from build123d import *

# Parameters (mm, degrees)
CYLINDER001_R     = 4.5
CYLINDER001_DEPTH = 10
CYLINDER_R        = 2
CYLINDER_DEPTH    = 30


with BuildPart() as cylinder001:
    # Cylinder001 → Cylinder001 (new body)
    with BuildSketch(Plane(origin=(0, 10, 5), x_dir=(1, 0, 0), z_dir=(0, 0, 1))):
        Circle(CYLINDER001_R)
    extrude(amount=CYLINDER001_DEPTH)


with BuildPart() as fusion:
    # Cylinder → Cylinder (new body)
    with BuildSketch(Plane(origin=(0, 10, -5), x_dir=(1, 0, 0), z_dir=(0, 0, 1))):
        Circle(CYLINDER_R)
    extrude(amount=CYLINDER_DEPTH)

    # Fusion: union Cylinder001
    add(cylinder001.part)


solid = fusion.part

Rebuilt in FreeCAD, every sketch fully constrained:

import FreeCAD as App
import Part
import Sketcher

doc = App.newDocument("Part")
params = doc.addObject("Spreadsheet::Sheet", "Params")
for row, (alias, value) in enumerate([
    ("sketch1_diameter", "9 mm"),
    ("pad1_length", "10 mm"),
    ("sketch2_diameter", "4 mm"),
    ("pad2_length", "30 mm"),
], start=1):
    params.set(f"A{row}", alias)
    params.set(f"B{row}", "=" + value)
    params.setAlias(f"B{row}", alias)

body = doc.addObject("PartDesign::Body", "Body")

# Sketch on XY plane
sketch1 = doc.addObject("Sketcher::SketchObject", "Sketch")
body.addObject(sketch1)
sketch1.AttachmentSupport = (doc.XY_Plane, [""])
sketch1.MapMode = "FlatFace"
sketch1.AttachmentOffset = App.Placement(App.Vector(0, 0, 5), App.Rotation())
sketch1.addGeometry(Part.Circle(App.Vector(0, 10, 0), App.Vector(0, 0, 1), 4.5), False)
sketch1.addConstraint(Sketcher.Constraint("PointOnObject", 0, 3, -2))
sketch1.addConstraint(Sketcher.Constraint("Diameter", 0, 9.0))
sketch1.addConstraint(Sketcher.Constraint("DistanceY", -1, 1, 0, 3, 10.0))
sketch1.setExpression("Constraints[1]", "Params.sketch1_diameter")
pad1 = doc.addObject("PartDesign::Pad", "Pad")
body.addObject(pad1)
pad1.Profile = sketch1
pad1.setExpression("Length", "Params.pad1_length")
body2 = doc.addObject("PartDesign::Body", "Body001")

# Sketch on XY plane
sketch2 = doc.addObject("Sketcher::SketchObject", "Sketch001")
body2.addObject(sketch2)
sketch2.AttachmentSupport = (doc.getObject("XY_Plane001"), [""])
sketch2.MapMode = "FlatFace"
sketch2.AttachmentOffset = App.Placement(App.Vector(0, 0, -5), App.Rotation())
sketch2.addGeometry(Part.Circle(App.Vector(0, 10, 0), App.Vector(0, 0, 1), 2), False)
sketch2.addConstraint(Sketcher.Constraint("PointOnObject", 0, 3, -2))
sketch2.addConstraint(Sketcher.Constraint("Diameter", 0, 4.0))
sketch2.addConstraint(Sketcher.Constraint("DistanceY", -1, 1, 0, 3, 10.0))
sketch2.setExpression("Constraints[1]", "Params.sketch2_diameter")
pad2 = doc.addObject("PartDesign::Pad", "Pad001")
body2.addObject(pad2)
pad2.Profile = sketch2
pad2.setExpression("Length", "Params.pad2_length")
doc.recompute()

boolean = doc.addObject("PartDesign::Boolean", "Boolean")
body2.addObject(boolean)
boolean.Type = "Fuse"
boolean.addObjects([body])

doc.recompute()
